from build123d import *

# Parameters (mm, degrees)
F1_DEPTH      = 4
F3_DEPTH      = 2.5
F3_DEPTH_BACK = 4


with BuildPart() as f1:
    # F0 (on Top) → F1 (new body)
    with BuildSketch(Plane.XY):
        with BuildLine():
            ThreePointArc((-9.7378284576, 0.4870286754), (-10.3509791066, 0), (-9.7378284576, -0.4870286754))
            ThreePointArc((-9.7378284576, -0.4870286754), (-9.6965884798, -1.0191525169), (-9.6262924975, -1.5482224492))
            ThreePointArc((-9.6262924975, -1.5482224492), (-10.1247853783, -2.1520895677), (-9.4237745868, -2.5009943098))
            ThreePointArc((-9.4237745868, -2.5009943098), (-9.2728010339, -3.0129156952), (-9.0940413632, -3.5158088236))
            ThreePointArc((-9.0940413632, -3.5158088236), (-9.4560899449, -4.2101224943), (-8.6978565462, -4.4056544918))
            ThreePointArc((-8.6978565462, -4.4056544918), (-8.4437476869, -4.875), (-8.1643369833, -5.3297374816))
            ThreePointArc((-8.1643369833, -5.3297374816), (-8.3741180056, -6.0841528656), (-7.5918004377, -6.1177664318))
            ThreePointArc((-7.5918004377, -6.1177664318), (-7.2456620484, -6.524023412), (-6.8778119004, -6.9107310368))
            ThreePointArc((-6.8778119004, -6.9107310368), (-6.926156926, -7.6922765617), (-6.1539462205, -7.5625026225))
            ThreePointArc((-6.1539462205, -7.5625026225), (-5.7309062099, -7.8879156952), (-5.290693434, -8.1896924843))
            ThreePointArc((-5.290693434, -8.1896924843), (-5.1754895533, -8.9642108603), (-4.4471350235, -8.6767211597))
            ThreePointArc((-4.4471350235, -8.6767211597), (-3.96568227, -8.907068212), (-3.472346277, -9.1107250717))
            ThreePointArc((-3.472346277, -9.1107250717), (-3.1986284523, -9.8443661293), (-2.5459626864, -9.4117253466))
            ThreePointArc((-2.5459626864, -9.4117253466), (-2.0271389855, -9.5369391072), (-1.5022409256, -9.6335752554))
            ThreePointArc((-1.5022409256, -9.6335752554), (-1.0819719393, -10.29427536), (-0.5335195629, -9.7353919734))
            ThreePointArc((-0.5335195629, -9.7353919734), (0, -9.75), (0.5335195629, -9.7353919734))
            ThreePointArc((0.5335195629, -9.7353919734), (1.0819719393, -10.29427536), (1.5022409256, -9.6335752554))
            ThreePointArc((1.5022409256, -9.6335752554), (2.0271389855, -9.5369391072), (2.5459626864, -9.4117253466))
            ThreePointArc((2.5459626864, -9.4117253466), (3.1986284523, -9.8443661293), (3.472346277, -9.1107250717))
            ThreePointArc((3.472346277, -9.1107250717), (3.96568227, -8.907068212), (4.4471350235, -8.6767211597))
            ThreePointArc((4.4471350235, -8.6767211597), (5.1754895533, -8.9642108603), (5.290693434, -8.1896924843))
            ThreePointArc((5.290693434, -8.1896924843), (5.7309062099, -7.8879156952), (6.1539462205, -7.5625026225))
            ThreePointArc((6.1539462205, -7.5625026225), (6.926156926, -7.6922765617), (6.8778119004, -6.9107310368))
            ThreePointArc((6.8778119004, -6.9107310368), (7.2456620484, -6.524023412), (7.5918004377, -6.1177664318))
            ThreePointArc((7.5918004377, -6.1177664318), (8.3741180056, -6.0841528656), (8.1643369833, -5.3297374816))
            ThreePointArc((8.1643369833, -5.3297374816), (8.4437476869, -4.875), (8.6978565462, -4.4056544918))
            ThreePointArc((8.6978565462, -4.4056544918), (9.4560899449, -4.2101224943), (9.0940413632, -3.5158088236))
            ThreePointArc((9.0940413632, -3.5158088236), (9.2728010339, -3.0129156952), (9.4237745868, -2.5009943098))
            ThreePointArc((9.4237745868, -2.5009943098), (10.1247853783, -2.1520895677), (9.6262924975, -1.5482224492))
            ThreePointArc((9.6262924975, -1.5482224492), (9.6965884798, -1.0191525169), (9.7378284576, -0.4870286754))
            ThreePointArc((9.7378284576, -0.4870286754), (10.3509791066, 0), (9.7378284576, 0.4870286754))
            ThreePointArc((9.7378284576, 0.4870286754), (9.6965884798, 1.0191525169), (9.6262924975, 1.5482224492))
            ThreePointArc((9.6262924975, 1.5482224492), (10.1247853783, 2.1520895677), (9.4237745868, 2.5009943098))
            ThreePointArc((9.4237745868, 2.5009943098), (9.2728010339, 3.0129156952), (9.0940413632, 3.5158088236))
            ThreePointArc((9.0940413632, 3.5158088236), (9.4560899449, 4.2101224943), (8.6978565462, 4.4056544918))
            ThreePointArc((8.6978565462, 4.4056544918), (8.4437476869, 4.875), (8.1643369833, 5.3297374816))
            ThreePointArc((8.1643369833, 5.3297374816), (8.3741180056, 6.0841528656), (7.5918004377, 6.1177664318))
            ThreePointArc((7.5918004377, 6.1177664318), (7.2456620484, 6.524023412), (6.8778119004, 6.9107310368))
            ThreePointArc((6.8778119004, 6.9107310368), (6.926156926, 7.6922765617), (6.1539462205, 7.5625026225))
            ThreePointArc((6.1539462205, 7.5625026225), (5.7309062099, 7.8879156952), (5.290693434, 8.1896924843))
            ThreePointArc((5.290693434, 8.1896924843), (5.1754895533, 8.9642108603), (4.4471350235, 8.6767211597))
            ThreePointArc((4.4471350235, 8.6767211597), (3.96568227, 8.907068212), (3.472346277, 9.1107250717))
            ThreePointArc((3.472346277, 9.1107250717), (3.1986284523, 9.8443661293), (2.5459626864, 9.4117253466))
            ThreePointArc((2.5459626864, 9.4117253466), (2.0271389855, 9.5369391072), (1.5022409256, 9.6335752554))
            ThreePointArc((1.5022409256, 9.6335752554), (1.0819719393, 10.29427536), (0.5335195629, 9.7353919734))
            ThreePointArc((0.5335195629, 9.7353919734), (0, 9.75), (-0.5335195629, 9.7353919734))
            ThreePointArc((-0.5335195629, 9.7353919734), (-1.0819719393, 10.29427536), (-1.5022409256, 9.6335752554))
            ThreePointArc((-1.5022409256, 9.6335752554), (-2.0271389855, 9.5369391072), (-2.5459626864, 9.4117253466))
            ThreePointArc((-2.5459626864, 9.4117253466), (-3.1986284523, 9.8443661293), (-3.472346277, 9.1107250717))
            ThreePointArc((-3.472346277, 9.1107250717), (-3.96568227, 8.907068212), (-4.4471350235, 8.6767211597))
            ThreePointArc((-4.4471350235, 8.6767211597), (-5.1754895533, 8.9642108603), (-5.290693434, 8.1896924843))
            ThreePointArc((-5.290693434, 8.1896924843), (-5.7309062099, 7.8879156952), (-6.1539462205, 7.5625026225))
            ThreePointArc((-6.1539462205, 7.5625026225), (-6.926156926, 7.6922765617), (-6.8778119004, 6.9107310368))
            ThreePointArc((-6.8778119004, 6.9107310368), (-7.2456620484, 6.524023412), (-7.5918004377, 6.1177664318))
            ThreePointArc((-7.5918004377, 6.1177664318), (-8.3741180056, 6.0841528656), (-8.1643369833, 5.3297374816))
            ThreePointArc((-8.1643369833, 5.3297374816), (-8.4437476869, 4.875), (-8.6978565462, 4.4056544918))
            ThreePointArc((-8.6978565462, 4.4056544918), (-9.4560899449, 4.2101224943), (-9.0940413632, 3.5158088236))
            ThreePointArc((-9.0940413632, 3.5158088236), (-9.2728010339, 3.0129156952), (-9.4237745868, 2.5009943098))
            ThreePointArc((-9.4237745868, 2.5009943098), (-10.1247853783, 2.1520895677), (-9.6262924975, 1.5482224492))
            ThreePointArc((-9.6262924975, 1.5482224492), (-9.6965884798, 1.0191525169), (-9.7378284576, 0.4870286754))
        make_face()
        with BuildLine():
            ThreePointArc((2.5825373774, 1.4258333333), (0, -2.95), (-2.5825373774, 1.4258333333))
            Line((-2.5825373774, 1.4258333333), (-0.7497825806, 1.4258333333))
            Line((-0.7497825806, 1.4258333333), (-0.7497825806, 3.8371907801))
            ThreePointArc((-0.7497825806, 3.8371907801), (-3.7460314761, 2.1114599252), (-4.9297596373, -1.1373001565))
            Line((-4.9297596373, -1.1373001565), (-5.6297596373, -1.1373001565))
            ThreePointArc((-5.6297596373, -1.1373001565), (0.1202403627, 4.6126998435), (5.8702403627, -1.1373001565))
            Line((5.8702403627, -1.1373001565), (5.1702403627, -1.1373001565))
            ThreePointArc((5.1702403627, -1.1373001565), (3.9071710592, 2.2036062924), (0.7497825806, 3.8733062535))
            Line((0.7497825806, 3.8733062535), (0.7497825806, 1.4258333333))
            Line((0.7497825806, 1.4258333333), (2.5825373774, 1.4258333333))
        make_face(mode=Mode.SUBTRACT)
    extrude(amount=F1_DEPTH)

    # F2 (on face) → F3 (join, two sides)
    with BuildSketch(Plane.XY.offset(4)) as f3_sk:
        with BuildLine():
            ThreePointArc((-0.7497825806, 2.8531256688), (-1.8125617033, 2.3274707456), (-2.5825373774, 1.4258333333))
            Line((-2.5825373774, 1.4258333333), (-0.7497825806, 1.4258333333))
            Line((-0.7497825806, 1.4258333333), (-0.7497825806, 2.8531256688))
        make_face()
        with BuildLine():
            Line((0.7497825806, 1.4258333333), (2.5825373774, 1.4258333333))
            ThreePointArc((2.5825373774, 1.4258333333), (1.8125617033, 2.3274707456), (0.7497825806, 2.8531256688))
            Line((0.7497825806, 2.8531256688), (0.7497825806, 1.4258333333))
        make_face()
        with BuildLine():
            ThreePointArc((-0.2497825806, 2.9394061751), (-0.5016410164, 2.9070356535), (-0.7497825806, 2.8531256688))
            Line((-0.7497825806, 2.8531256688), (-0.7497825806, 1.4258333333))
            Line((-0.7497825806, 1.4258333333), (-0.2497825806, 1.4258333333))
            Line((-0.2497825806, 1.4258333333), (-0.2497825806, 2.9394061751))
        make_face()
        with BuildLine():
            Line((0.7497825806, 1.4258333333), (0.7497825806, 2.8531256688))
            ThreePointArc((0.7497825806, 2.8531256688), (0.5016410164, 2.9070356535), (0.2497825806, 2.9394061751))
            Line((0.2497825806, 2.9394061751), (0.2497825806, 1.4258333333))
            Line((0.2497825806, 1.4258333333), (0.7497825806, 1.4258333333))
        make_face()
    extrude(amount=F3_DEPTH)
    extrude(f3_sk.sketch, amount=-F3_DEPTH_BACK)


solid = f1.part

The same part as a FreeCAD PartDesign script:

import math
import FreeCAD as App
import Part
import Sketcher

V = App.Vector
Q = App.Units.Quantity

doc = App.newDocument("Part")
body = doc.addObject("PartDesign::Body", "Body")

sketch1 = body.newObject("Sketcher::SketchObject", "Sketch")
sketch1.AttachmentSupport = (doc.getObject("XY_Plane"), [""])
sketch1.MapMode = "FlatFace"
sketch1.addGeometry(Part.ArcOfCircle(Part.Circle(V(-9.9, 0, 0), V(0, 0, 1), 0.5), math.radians(77), math.radians(283)), False)
sketch1.addGeometry(Part.ArcOfCircle(Part.Circle(V(0, 0, 0), V(0, 0, 1), 9.8), math.radians(-177.14), math.radians(-170.86)), False)
sketch1.addGeometry(Part.ArcOfCircle(Part.Circle(V(-9.6, -2, 0), V(0, 0, 1), 0.5), math.radians(89), math.radians(295)), False)
sketch1.addGeometry(Part.ArcOfCircle(Part.Circle(V(0, 0, 0), V(0, 0, 1), 9.7), math.radians(-165.14), math.radians(-158.86)), False)
sketch1.addGeometry(Part.ArcOfCircle(Part.Circle(V(-9, -4, 0), V(0, 0, 1), 0.5), math.radians(101), math.radians(307)), False)
sketch1.addGeometry(Part.ArcOfCircle(Part.Circle(V(0, 0, 0), V(0, 0, 1), 9.7), math.radians(-153.14), math.radians(-146.86)), False)
sketch1.addGeometry(Part.ArcOfCircle(Part.Circle(V(-8, -5.8, 0), V(0, 0, 1), 0.5), math.radians(113), math.radians(319)), False)
sketch1.addGeometry(Part.ArcOfCircle(Part.Circle(V(0, 0, 0), V(0, 0, 1), 9.8), math.radians(-141.14), math.radians(-134.86)), False)
sketch1.addGeometry(Part.ArcOfCircle(Part.Circle(V(-6.6, -7.3, 0), V(0, 0, 1), 0.5), math.radians(125), math.radians(331)), False)
sketch1.addGeometry(Part.ArcOfCircle(Part.Circle(V(0, 0, 0), V(0, 0, 1), 9.7), math.radians(-129.14), math.radians(-122.86)), False)
sketch1.addGeometry(Part.ArcOfCircle(Part.Circle(V(-4.9, -8.5, 0), V(0, 0, 1), 0.5), math.radians(137), math.radians(343)), False)
sketch1.addGeometry(Part.ArcOfCircle(Part.Circle(V(0, 0, 0), V(0, 0, 1), 9.8), math.radians(-117.14), math.radians(-110.86)), False)
sketch1.addGeometry(Part.ArcOfCircle(Part.Circle(V(-3, -9.4, 0), V(0, 0, 1), 0.5), math.radians(149), math.radians(355)), False)
sketch1.addGeometry(Part.ArcOfCircle(Part.Circle(V(0, 0, 0), V(0, 0, 1), 9.7), math.radians(-105.14), math.radians(-98.86)), False)
sketch1.addGeometry(Part.ArcOfCircle(Part.Circle(V(-1, -9.8, 0), V(0, 0, 1), 0.5), math.radians(161), math.radians(367)), False)
sketch1.addGeometry(Part.ArcOfCircle(Part.Circle(V(0, 0, 0), V(0, 0, 1), 9.7), math.radians(-93.14), math.radians(-86.86)), False)
sketch1.addGeometry(Part.ArcOfCircle(Part.Circle(V(1, -9.8, 0), V(0, 0, 1), 0.5), math.radians(173), math.radians(379)), False)
sketch1.addGeometry(Part.ArcOfCircle(Part.Circle(V(0, 0, 0), V(0, 0, 1), 9.7), math.radians(-81.14), math.radians(-74.86)), False)
sketch1.addGeometry(Part.ArcOfCircle(Part.Circle(V(3, -9.4, 0), V(0, 0, 1), 0.5), math.radians(-175), math.radians(31)), False)
sketch1.addGeometry(Part.ArcOfCircle(Part.Circle(V(0, 0, 0), V(0, 0, 1), 9.8), math.radians(-69.14), math.radians(-62.86)), False)
sketch1.addGeometry(Part.ArcOfCircle(Part.Circle(V(4.9, -8.5, 0), V(0, 0, 1), 0.5), math.radians(-163), math.radians(43)), False)
sketch1.addGeometry(Part.ArcOfCircle(Part.Circle(V(0, 0, 0), V(0, 0, 1), 9.7), math.radians(-57.14), math.radians(-50.86)), False)
sketch1.addGeometry(Part.ArcOfCircle(Part.Circle(V(6.6, -7.3, 0), V(0, 0, 1), 0.5), math.radians(-151), math.radians(55)), False)
sketch1.addGeometry(Part.ArcOfCircle(Part.Circle(V(0, 0, 0), V(0, 0, 1), 9.8), math.radians(-45.14), math.radians(-38.86)), False)
sketch1.addGeometry(Part.ArcOfCircle(Part.Circle(V(8, -5.8, 0), V(0, 0, 1), 0.5), math.radians(-139), math.radians(67)), False)
sketch1.addGeometry(Part.ArcOfCircle(Part.Circle(V(0, 0, 0), V(0, 0, 1), 9.7), math.radians(-33.14), math.radians(-26.86)), False)
sketch1.addGeometry(Part.ArcOfCircle(Part.Circle(V(9, -4, 0), V(0, 0, 1), 0.5), math.radians(-127), math.radians(79)), False)
sketch1.addGeometry(Part.ArcOfCircle(Part.Circle(V(0, 0, 0), V(0, 0, 1), 9.7), math.radians(-21.14), math.radians(-14.86)), False)
sketch1.addGeometry(Part.ArcOfCircle(Part.Circle(V(9.6, -2, 0), V(0, 0, 1), 0.5), math.radians(-115), math.radians(91)), False)
sketch1.addGeometry(Part.ArcOfCircle(Part.Circle(V(0, 0, 0), V(0, 0, 1), 9.8), math.radians(-9.14), math.radians(-2.86)), False)
sketch1.addGeometry(Part.ArcOfCircle(Part.Circle(V(9.9, 0, 0), V(0, 0, 1), 0.5), math.radians(-103), math.radians(103)), False)
sketch1.addGeometry(Part.ArcOfCircle(Part.Circle(V(0, 0, 0), V(0, 0, 1), 9.8), math.radians(2.86), math.radians(9.14)), False)
sketch1.addGeometry(Part.ArcOfCircle(Part.Circle(V(9.6, 2, 0), V(0, 0, 1), 0.5), math.radians(-91), math.radians(115)), False)
sketch1.addGeometry(Part.ArcOfCircle(Part.Circle(V(0, 0, 0), V(0, 0, 1), 9.7), math.radians(14.86), math.radians(21.14)), False)
sketch1.addGeometry(Part.ArcOfCircle(Part.Circle(V(9, 4, 0), V(0, 0, 1), 0.5), math.radians(-79), math.radians(127)), False)
sketch1.addGeometry(Part.ArcOfCircle(Part.Circle(V(0, 0, 0), V(0, 0, 1), 9.7), math.radians(26.86), math.radians(33.14)), False)
sketch1.addGeometry(Part.ArcOfCircle(Part.Circle(V(8, 5.8, 0), V(0, 0, 1), 0.5), math.radians(-67), math.radians(139)), False)
sketch1.addGeometry(Part.ArcOfCircle(Part.Circle(V(0, 0, 0), V(0, 0, 1), 9.8), math.radians(38.86), math.radians(45.14)), False)
sketch1.addGeometry(Part.ArcOfCircle(Part.Circle(V(6.6, 7.3, 0), V(0, 0, 1), 0.5), math.radians(-55), math.radians(151)), False)
sketch1.addGeometry(Part.ArcOfCircle(Part.Circle(V(0, 0, 0), V(0, 0, 1), 9.7), math.radians(50.86), math.radians(57.14)), False)
sketch1.addGeometry(Part.ArcOfCircle(Part.Circle(V(4.9, 8.5, 0), V(0, 0, 1), 0.5), math.radians(-43), math.radians(163)), False)
sketch1.addGeometry(Part.ArcOfCircle(Part.Circle(V(0, 0, 0), V(0, 0, 1), 9.8), math.radians(62.86), math.radians(69.14)), False)
sketch1.addGeometry(Part.ArcOfCircle(Part.Circle(V(3, 9.4, 0), V(0, 0, 1), 0.5), math.radians(-31), math.radians(175)), False)
sketch1.addGeometry(Part.ArcOfCircle(Part.Circle(V(0, 0, 0), V(0, 0, 1), 9.7), math.radians(74.86), math.radians(81.14)), False)
sketch1.addGeometry(Part.ArcOfCircle(Part.Circle(V(1, 9.8, 0), V(0, 0, 1), 0.5), math.radians(-19), math.radians(187)), False)
sketch1.addGeometry(Part.ArcOfCircle(Part.Circle(V(0, 0, 0), V(0, 0, 1), 9.7), math.radians(86.86), math.radians(93.14)), False)
sketch1.addGeometry(Part.ArcOfCircle(Part.Circle(V(-1, 9.8, 0), V(0, 0, 1), 0.5), math.radians(-7), math.radians(199)), False)
sketch1.addGeometry(Part.ArcOfCircle(Part.Circle(V(0, 0, 0), V(0, 0, 1), 9.7), math.radians(98.86), math.radians(105.14)), False)
sketch1.addGeometry(Part.ArcOfCircle(Part.Circle(V(-3, 9.4, 0), V(0, 0, 1), 0.5), math.radians(5), math.radians(211)), False)
sketch1.addGeometry(Part.ArcOfCircle(Part.Circle(V(0, 0, 0), V(0, 0, 1), 9.8), math.radians(110.86), math.radians(117.14)), False)
sketch1.addGeometry(Part.ArcOfCircle(Part.Circle(V(-4.9, 8.5, 0), V(0, 0, 1), 0.5), math.radians(17), math.radians(223)), False)
sketch1.addGeometry(Part.ArcOfCircle(Part.Circle(V(0, 0, 0), V(0, 0, 1), 9.7), math.radians(122.86), math.radians(129.14)), False)
sketch1.addGeometry(Part.ArcOfCircle(Part.Circle(V(-6.6, 7.3, 0), V(0, 0, 1), 0.5), math.radians(29), math.radians(235)), False)
sketch1.addGeometry(Part.ArcOfCircle(Part.Circle(V(0, 0, 0), V(0, 0, 1), 9.8), math.radians(134.86), math.radians(141.14)), False)
sketch1.addGeometry(Part.ArcOfCircle(Part.Circle(V(-8, 5.8, 0), V(0, 0, 1), 0.5), math.radians(41), math.radians(247)), False)
sketch1.addGeometry(Part.ArcOfCircle(Part.Circle(V(0, 0, 0), V(0, 0, 1), 9.7), math.radians(146.86), math.radians(153.14)), False)
sketch1.addGeometry(Part.ArcOfCircle(Part.Circle(V(-9, 4, 0), V(0, 0, 1), 0.5), math.radians(53), math.radians(259)), False)
sketch1.addGeometry(Part.ArcOfCircle(Part.Circle(V(0, 0, 0), V(0, 0, 1), 9.7), math.radians(158.86), math.radians(165.14)), False)
sketch1.addGeometry(Part.ArcOfCircle(Part.Circle(V(-9.6, 2, 0), V(0, 0, 1), 0.5), math.radians(65), math.radians(271)), False)
sketch1.addGeometry(Part.ArcOfCircle(Part.Circle(V(0, 0, 0), V(0, 0, 1), 9.8), math.radians(170.86), math.radians(177.14)), False)
sketch1.addGeometry(Part.LineSegment(V(0.7, 1.4, 0), V(2.6, 1.4, 0)), False)
sketch1.addGeometry(Part.ArcOfCircle(Part.Circle(V(0, 0, 0), V(0, 0, 1), 3), math.radians(151), math.radians(389)), False)
sketch1.addGeometry(Part.LineSegment(V(-2.6, 1.4, 0), V(-0.7, 1.4, 0)), False)
sketch1.addGeometry(Part.LineSegment(V(-0.7, 1.4, 0), V(-0.7, 3.8, 0)), False)
sketch1.addGeometry(Part.ArcOfCircle(Part.Circle(V(0.1, -1.1, 0), V(0, 0, 1), 5), math.radians(100), math.radians(180)), False)
sketch1.addGeometry(Part.LineSegment(V(-4.9, -1.1, 0), V(-5.6, -1.1, 0)), False)
sketch1.addGeometry(Part.ArcOfCircle(Part.Circle(V(0.1, -1.1, 0), V(0, 0, 1), 5.8), math.radians(0), math.radians(180)), False)
sketch1.addGeometry(Part.LineSegment(V(5.9, -1.1, 0), V(5.2, -1.1, 0)), False)
sketch1.addGeometry(Part.ArcOfCircle(Part.Circle(V(0.1, -1.1, 0), V(0, 0, 1), 5), math.radians(0), math.radians(83)), False)
sketch1.addGeometry(Part.LineSegment(V(0.7, 3.9, 0), V(0.7, 1.4, 0)), False)
sketch1.addConstraint(Sketcher.Constraint("Coincident", 0, 2, 1, 1))
sketch1.addConstraint(Sketcher.Constraint("Coincident", 1, 2, 2, 1))
sketch1.addConstraint(Sketcher.Constraint("Coincident", 2, 2, 3, 1))
sketch1.addConstraint(Sketcher.Constraint("Coincident", 3, 2, 4, 1))
sketch1.addConstraint(Sketcher.Constraint("Coincident", 4, 2, 5, 1))
sketch1.addConstraint(Sketcher.Constraint("Coincident", 5, 2, 6, 1))
sketch1.addConstraint(Sketcher.Constraint("Coincident", 6, 2, 7, 1))
sketch1.addConstraint(Sketcher.Constraint("Coincident", 7, 2, 8, 1))
sketch1.addConstraint(Sketcher.Constraint("Coincident", 8, 2, 9, 1))
sketch1.addConstraint(Sketcher.Constraint("Coincident", 9, 2, 10, 1))
sketch1.addConstraint(Sketcher.Constraint("Coincident", 10, 2, 11, 1))
sketch1.addConstraint(Sketcher.Constraint("Coincident", 11, 2, 12, 1))
sketch1.addConstraint(Sketcher.Constraint("Coincident", 12, 2, 13, 1))
sketch1.addConstraint(Sketcher.Constraint("Coincident", 13, 2, 14, 1))
sketch1.addConstraint(Sketcher.Constraint("Coincident", 14, 2, 15, 1))
sketch1.addConstraint(Sketcher.Constraint("Coincident", 15, 2, 16, 1))
sketch1.addConstraint(Sketcher.Constraint("Coincident", 16, 2, 17, 1))
sketch1.addConstraint(Sketcher.Constraint("Coincident", 17, 2, 18, 1))
sketch1.addConstraint(Sketcher.Constraint("Coincident", 18, 2, 19, 1))
sketch1.addConstraint(Sketcher.Constraint("Coincident", 19, 2, 20, 1))
sketch1.addConstraint(Sketcher.Constraint("Coincident", 20, 2, 21, 1))
sketch1.addConstraint(Sketcher.Constraint("Coincident", 21, 2, 22, 1))
sketch1.addConstraint(Sketcher.Constraint("Coincident", 22, 2, 23, 1))
sketch1.addConstraint(Sketcher.Constraint("Coincident", 23, 2, 24, 1))
sketch1.addConstraint(Sketcher.Constraint("Coincident", 24, 2, 25, 1))
sketch1.addConstraint(Sketcher.Constraint("Coincident", 25, 2, 26, 1))
sketch1.addConstraint(Sketcher.Constraint("Coincident", 26, 2, 27, 1))
sketch1.addConstraint(Sketcher.Constraint("Coincident", 27, 2, 28, 1))
sketch1.addConstraint(Sketcher.Constraint("Coincident", 28, 2, 29, 1))
sketch1.addConstraint(Sketcher.Constraint("Coincident", 29, 2, 30, 1))
sketch1.addConstraint(Sketcher.Constraint("Coincident", 30, 2, 31, 1))
sketch1.addConstraint(Sketcher.Constraint("Coincident", 31, 2, 32, 1))
sketch1.addConstraint(Sketcher.Constraint("Coincident", 32, 2, 33, 1))
sketch1.addConstraint(Sketcher.Constraint("Coincident", 33, 2, 34, 1))
sketch1.addConstraint(Sketcher.Constraint("Coincident", 34, 2, 35, 1))
sketch1.addConstraint(Sketcher.Constraint("Coincident", 35, 2, 36, 1))
sketch1.addConstraint(Sketcher.Constraint("Coincident", 36, 2, 37, 1))
sketch1.addConstraint(Sketcher.Constraint("Coincident", 37, 2, 38, 1))
sketch1.addConstraint(Sketcher.Constraint("Coincident", 38, 2, 39, 1))
sketch1.addConstraint(Sketcher.Constraint("Coincident", 39, 2, 40, 1))
sketch1.addConstraint(Sketcher.Constraint("Coincident", 40, 2, 41, 1))
sketch1.addConstraint(Sketcher.Constraint("Coincident", 41, 2, 42, 1))
sketch1.addConstraint(Sketcher.Constraint("Coincident", 42, 2, 43, 1))
sketch1.addConstraint(Sketcher.Constraint("Coincident", 43, 2, 44, 1))
sketch1.addConstraint(Sketcher.Constraint("Coincident", 44, 2, 45, 1))
sketch1.addConstraint(Sketcher.Constraint("Coincident", 45, 2, 46, 1))
sketch1.addConstraint(Sketcher.Constraint("Coincident", 46, 2, 47, 1))
sketch1.addConstraint(Sketcher.Constraint("Coincident", 47, 2, 48, 1))
sketch1.addConstraint(Sketcher.Constraint("Coincident", 48, 2, 49, 1))
sketch1.addConstraint(Sketcher.Constraint("Coincident", 49, 2, 50, 1))
sketch1.addConstraint(Sketcher.Constraint("Coincident", 50, 2, 51, 1))
sketch1.addConstraint(Sketcher.Constraint("Coincident", 51, 2, 52, 1))
sketch1.addConstraint(Sketcher.Constraint("Coincident", 52, 2, 53, 1))
sketch1.addConstraint(Sketcher.Constraint("Coincident", 53, 2, 54, 1))
sketch1.addConstraint(Sketcher.Constraint("Coincident", 54, 2, 55, 1))
sketch1.addConstraint(Sketcher.Constraint("Coincident", 55, 2, 56, 1))
sketch1.addConstraint(Sketcher.Constraint("Coincident", 56, 2, 57, 1))
sketch1.addConstraint(Sketcher.Constraint("Coincident", 57, 2, 58, 1))
sketch1.addConstraint(Sketcher.Constraint("Coincident", 58, 2, 59, 1))
sketch1.addConstraint(Sketcher.Constraint("Coincident", 59, 2, 0, 1))
sketch1.addConstraint(Sketcher.Constraint("Coincident", 60, 2, 61, 2))
sketch1.addConstraint(Sketcher.Constraint("Coincident", 61, 1, 62, 1))
sketch1.addConstraint(Sketcher.Constraint("Coincident", 62, 2, 63, 1))
sketch1.addConstraint(Sketcher.Constraint("Coincident", 63, 2, 64, 1))
sketch1.addConstraint(Sketcher.Constraint("Coincident", 64, 2, 65, 1))
sketch1.addConstraint(Sketcher.Constraint("Coincident", 65, 2, 66, 2))
sketch1.addConstraint(Sketcher.Constraint("Coincident", 66, 1, 67, 1))
sketch1.addConstraint(Sketcher.Constraint("Coincident", 67, 2, 68, 1))
sketch1.addConstraint(Sketcher.Constraint("Coincident", 68, 2, 69, 1))
sketch1.addConstraint(Sketcher.Constraint("Coincident", 69, 2, 60, 1))
sketch1.addConstraint(Sketcher.Constraint("Horizontal", 60))
sketch1.addConstraint(Sketcher.Constraint("Horizontal", 62))
sketch1.addConstraint(Sketcher.Constraint("Vertical", 63))
sketch1.addConstraint(Sketcher.Constraint("Horizontal", 65))
sketch1.addConstraint(Sketcher.Constraint("Horizontal", 67))
sketch1.addConstraint(Sketcher.Constraint("Vertical", 69))
sketch1.addConstraint(Sketcher.Constraint("Coincident", 1, 3, -1, 1))
sketch1.addConstraint(Sketcher.Constraint("Coincident", 3, 3, -1, 1))
sketch1.addConstraint(Sketcher.Constraint("Coincident", 5, 3, -1, 1))
sketch1.addConstraint(Sketcher.Constraint("Coincident", 7, 3, -1, 1))
sketch1.addConstraint(Sketcher.Constraint("Coincident", 9, 3, -1, 1))
sketch1.addConstraint(Sketcher.Constraint("Coincident", 11, 3, -1, 1))
sketch1.addConstraint(Sketcher.Constraint("Coincident", 13, 3, -1, 1))
sketch1.addConstraint(Sketcher.Constraint("Coincident", 15, 3, -1, 1))
sketch1.addConstraint(Sketcher.Constraint("Coincident", 17, 3, -1, 1))
sketch1.addConstraint(Sketcher.Constraint("Coincident", 19, 3, -1, 1))
sketch1.addConstraint(Sketcher.Constraint("Coincident", 21, 3, -1, 1))
sketch1.addConstraint(Sketcher.Constraint("Coincident", 23, 3, -1, 1))
sketch1.addConstraint(Sketcher.Constraint("Coincident", 25, 3, -1, 1))
sketch1.addConstraint(Sketcher.Constraint("Coincident", 27, 3, -1, 1))
sketch1.addConstraint(Sketcher.Constraint("Coincident", 29, 3, -1, 1))
sketch1.addConstraint(Sketcher.Constraint("Coincident", 31, 3, -1, 1))
sketch1.addConstraint(Sketcher.Constraint("Coincident", 33, 3, -1, 1))
sketch1.addConstraint(Sketcher.Constraint("Coincident", 35, 3, -1, 1))
sketch1.addConstraint(Sketcher.Constraint("Coincident", 37, 3, -1, 1))
sketch1.addConstraint(Sketcher.Constraint("Coincident", 39, 3, -1, 1))
sketch1.addConstraint(Sketcher.Constraint("Coincident", 41, 3, -1, 1))
sketch1.addConstraint(Sketcher.Constraint("Coincident", 43, 3, -1, 1))
sketch1.addConstraint(Sketcher.Constraint("Coincident", 45, 3, -1, 1))
sketch1.addConstraint(Sketcher.Constraint("Coincident", 47, 3, -1, 1))
sketch1.addConstraint(Sketcher.Constraint("Coincident", 49, 3, -1, 1))
sketch1.addConstraint(Sketcher.Constraint("Coincident", 51, 3, -1, 1))
sketch1.addConstraint(Sketcher.Constraint("Coincident", 53, 3, -1, 1))
sketch1.addConstraint(Sketcher.Constraint("Coincident", 55, 3, -1, 1))
sketch1.addConstraint(Sketcher.Constraint("Coincident", 57, 3, -1, 1))
sketch1.addConstraint(Sketcher.Constraint("Coincident", 59, 3, -1, 1))
sketch1.addConstraint(Sketcher.Constraint("Coincident", 61, 3, -1, 1))
sketch1.addConstraint(Sketcher.Constraint("Coincident", 66, 3, 64, 3))
sketch1.addConstraint(Sketcher.Constraint("Coincident", 68, 3, 64, 3))
sketch1.addConstraint(Sketcher.Constraint("Equal", 0, 2))
sketch1.addConstraint(Sketcher.Constraint("Equal", 1, 3))
sketch1.addConstraint(Sketcher.Constraint("Equal", 2, 4))
sketch1.addConstraint(Sketcher.Constraint("Equal", 3, 5))
sketch1.addConstraint(Sketcher.Constraint("Equal", 4, 6))
sketch1.addConstraint(Sketcher.Constraint("Equal", 5, 7))
sketch1.addConstraint(Sketcher.Constraint("Equal", 6, 8))
sketch1.addConstraint(Sketcher.Constraint("Equal", 7, 9))
sketch1.addConstraint(Sketcher.Constraint("Equal", 8, 10))
sketch1.addConstraint(Sketcher.Constraint("Equal", 9, 11))
sketch1.addConstraint(Sketcher.Constraint("Equal", 10, 12))
sketch1.addConstraint(Sketcher.Constraint("Equal", 11, 13))
sketch1.addConstraint(Sketcher.Constraint("Equal", 12, 14))
sketch1.addConstraint(Sketcher.Constraint("Equal", 13, 15))
sketch1.addConstraint(Sketcher.Constraint("Equal", 14, 16))
sketch1.addConstraint(Sketcher.Constraint("Equal", 15, 17))
sketch1.addConstraint(Sketcher.Constraint("Equal", 16, 18))
sketch1.addConstraint(Sketcher.Constraint("Equal", 17, 19))
sketch1.addConstraint(Sketcher.Constraint("Equal", 18, 20))
sketch1.addConstraint(Sketcher.Constraint("Equal", 19, 21))
sketch1.addConstraint(Sketcher.Constraint("Equal", 20, 22))
sketch1.addConstraint(Sketcher.Constraint("Equal", 21, 23))
sketch1.addConstraint(Sketcher.Constraint("Equal", 22, 24))
sketch1.addConstraint(Sketcher.Constraint("Equal", 23, 25))
sketch1.addConstraint(Sketcher.Constraint("Equal", 24, 26))
sketch1.addConstraint(Sketcher.Constraint("Equal", 25, 27))
sketch1.addConstraint(Sketcher.Constraint("Equal", 26, 28))
sketch1.addConstraint(Sketcher.Constraint("Equal", 27, 29))
sketch1.addConstraint(Sketcher.Constraint("Equal", 28, 30))
sketch1.addConstraint(Sketcher.Constraint("Equal", 29, 31))
sketch1.addConstraint(Sketcher.Constraint("Equal", 30, 32))
sketch1.addConstraint(Sketcher.Constraint("Equal", 31, 33))
sketch1.addConstraint(Sketcher.Constraint("Equal", 32, 34))
sketch1.addConstraint(Sketcher.Constraint("Equal", 33, 35))
sketch1.addConstraint(Sketcher.Constraint("Equal", 34, 36))
sketch1.addConstraint(Sketcher.Constraint("Equal", 35, 37))
sketch1.addConstraint(Sketcher.Constraint("Equal", 36, 38))
sketch1.addConstraint(Sketcher.Constraint("Equal", 37, 39))
sketch1.addConstraint(Sketcher.Constraint("Equal", 38, 40))
sketch1.addConstraint(Sketcher.Constraint("Equal", 39, 41))
sketch1.addConstraint(Sketcher.Constraint("Equal", 40, 42))
sketch1.addConstraint(Sketcher.Constraint("Equal", 41, 43))
sketch1.addConstraint(Sketcher.Constraint("Equal", 42, 44))
sketch1.addConstraint(Sketcher.Constraint("Equal", 43, 45))
sketch1.addConstraint(Sketcher.Constraint("Equal", 44, 46))
sketch1.addConstraint(Sketcher.Constraint("Equal", 45, 47))
sketch1.addConstraint(Sketcher.Constraint("Equal", 46, 48))
sketch1.addConstraint(Sketcher.Constraint("Equal", 47, 49))
sketch1.addConstraint(Sketcher.Constraint("Equal", 48, 50))
sketch1.addConstraint(Sketcher.Constraint("Equal", 49, 51))
sketch1.addConstraint(Sketcher.Constraint("Equal", 50, 52))
sketch1.addConstraint(Sketcher.Constraint("Equal", 51, 53))
sketch1.addConstraint(Sketcher.Constraint("Equal", 52, 54))
sketch1.addConstraint(Sketcher.Constraint("Equal", 53, 55))
sketch1.addConstraint(Sketcher.Constraint("Equal", 54, 56))
sketch1.addConstraint(Sketcher.Constraint("Equal", 55, 57))
sketch1.addConstraint(Sketcher.Constraint("Equal", 56, 58))
sketch1.addConstraint(Sketcher.Constraint("Equal", 57, 59))
sketch1.addConstraint(Sketcher.Constraint("Equal", 64, 68))
sketch1.addConstraint(Sketcher.Constraint("Symmetric", 0, 3, 30, 3, -1, 1))
sketch1.addConstraint(Sketcher.Constraint("Symmetric", 2, 3, 32, 3, -1, 1))
sketch1.addConstraint(Sketcher.Constraint("Symmetric", 4, 3, 34, 3, -1, 1))
sketch1.addConstraint(Sketcher.Constraint("Symmetric", 6, 3, 36, 3, -1, 1))
sketch1.addConstraint(Sketcher.Constraint("Symmetric", 8, 3, 38, 3, -1, 1))
sketch1.addConstraint(Sketcher.Constraint("Symmetric", 10, 3, 40, 3, -1, 1))
sketch1.addConstraint(Sketcher.Constraint("Symmetric", 12, 3, 42, 3, -1, 1))
sketch1.addConstraint(Sketcher.Constraint("Symmetric", 14, 3, 44, 3, -1, 1))
sketch1.addConstraint(Sketcher.Constraint("Symmetric", 16, 3, 46, 3, -1, 1))
sketch1.addConstraint(Sketcher.Constraint("Symmetric", 18, 3, 48, 3, -1, 1))
sketch1.addConstraint(Sketcher.Constraint("Symmetric", 20, 3, 50, 3, -1, 1))
sketch1.addConstraint(Sketcher.Constraint("Symmetric", 22, 3, 52, 3, -1, 1))
sketch1.addConstraint(Sketcher.Constraint("Symmetric", 24, 3, 54, 3, -1, 1))
sketch1.addConstraint(Sketcher.Constraint("Symmetric", 26, 3, 56, 3, -1, 1))
sketch1.addConstraint(Sketcher.Constraint("Symmetric", 28, 3, 58, 3, -1, 1))
sketch1.addConstraint(Sketcher.Constraint("Symmetric", 14, 3, 16, 3, -2))
sketch1.addConstraint(Sketcher.Constraint("Symmetric", 12, 3, 18, 3, -2))
sketch1.addConstraint(Sketcher.Constraint("Symmetric", 10, 3, 20, 3, -2))
sketch1.addConstraint(Sketcher.Constraint("Symmetric", 8, 3, 22, 3, -2))
sketch1.addConstraint(Sketcher.Constraint("Symmetric", 6, 3, 24, 3, -2))
sketch1.addConstraint(Sketcher.Constraint("Symmetric", 4, 3, 26, 3, -2))
sketch1.addConstraint(Sketcher.Constraint("Symmetric", 2, 3, 28, 3, -2))
sketch1.addConstraint(Sketcher.Constraint("Symmetric", 62, 2, 69, 2, -2))
sketch1.addConstraint(Sketcher.Constraint("PointOnObject", 0, 3, -1))
sketch1.addConstraint(Sketcher.Constraint("Horizontal", 68, 3, 64, 2))
sketch1.addConstraint(Sketcher.Constraint("Horizontal", 65, 2, 66, 1))
sketch1.addConstraint(Sketcher.Constraint("Radius", 0, Q("0.5 mm")))
sketch1.addConstraint(Sketcher.Constraint("Radius", 1, Q("9.75 mm")))
sketch1.addConstraint(Sketcher.Constraint("Radius", 61, Q("2.95 mm")))
sketch1.addConstraint(Sketcher.Constraint("Radius", 64, Q("5.05 mm")))
sketch1.addConstraint(Sketcher.Constraint("Radius", 66, Q("5.75 mm")))
sketch1.addConstraint(Sketcher.Constraint("DistanceY", 10, 3, -1, 1, Q("8.531198 mm")))
sketch1.addConstraint(Sketcher.Constraint("DistanceY", 64, 3, -1, 1, Q("1.1373 mm")))
sketch1.addConstraint(Sketcher.Constraint("DistanceX", 6, 2, -1, 1, Q("7.5918 mm")))
sketch1.addConstraint(Sketcher.Constraint("DistanceX", 60, 1, 60, 2, Q("1.832755 mm")))
sketch1.addConstraint(Sketcher.Constraint("DistanceY", 63, 1, 63, 2, Q("2.411357 mm")))
sketch1.addConstraint(Sketcher.Constraint("DistanceY", 69, 2, 69, 1, Q("2.447473 mm")))
sketch1.addConstraint(Sketcher.Constraint("DistanceX", 0, 3, -1, 1, Q("9.850979 mm")))
sketch1.addConstraint(Sketcher.Constraint("DistanceX", 2, 3, -1, 1, Q("9.635712 mm")))
sketch1.addConstraint(Sketcher.Constraint("DistanceX", 6, 3, -1, 1, Q("7.96961 mm")))
sketch1.addConstraint(Sketcher.Constraint("DistanceX", 8, 3, -1, 1, Q("6.591592 mm")))
sketch1.addConstraint(Sketcher.Constraint("DistanceX", 10, 3, -1, 1, Q("4.92549 mm")))
sketch1.addConstraint(Sketcher.Constraint("DistanceX", 12, 3, -1, 1, Q("3.04412 mm")))
sketch1.addConstraint(Sketcher.Constraint("DistanceX", 3, 2, -1, 1, Q("9.094041 mm")))
sketch1.addConstraint(Sketcher.Constraint("DistanceX", 7, 2, -1, 1, Q("6.877812 mm")))
sketch1.addConstraint(Sketcher.Constraint("DistanceX", 13, 2, -1, 1, Q("1.502241 mm")))
sketch1.addConstraint(Sketcher.Constraint("DistanceX", 14, 2, -1, 1, Q("0.53352 mm")))
sketch1.addConstraint(Sketcher.Constraint("DistanceY", 2, 3, -1, 1, Q("2.048134 mm")))
sketch1.addConstraint(Sketcher.Constraint("DistanceX", 4, 3, -1, 1, Q("8.999317 mm")))
sketch1.addConstraint(Sketcher.Constraint("DistanceY", 12, 3, -1, 1, Q("9.368838 mm")))
pad1 = body.newObject("PartDesign::Pad", "Pad")
pad1.Profile = sketch1
pad1.Length = 4

sketch2 = body.newObject("Sketcher::SketchObject", "Sketch001")
sketch2.AttachmentSupport = (doc.getObject("XY_Plane"), [""])
sketch2.MapMode = "FlatFace"
sketch2.AttachmentOffset = App.Placement(V(0, 0, 4), App.Rotation())
sketch2.addGeometry(Part.LineSegment(V(-2.6, 1.4, 0), V(-0.2, 1.4, 0)), False)
sketch2.addGeometry(Part.LineSegment(V(-0.2, 1.4, 0), V(-0.2, 2.9, 0)), False)
sketch2.addGeometry(Part.ArcOfCircle(Part.Circle(V(0, 0, 0), V(0, 0, 1), 2.9), math.radians(94.86), math.radians(104.72)), False)
sketch2.addGeometry(Part.ArcOfCircle(Part.Circle(V(0, 0, 0), V(0, 0, 1), 3), math.radians(105), math.radians(151)), False)
sketch2.addGeometry(Part.ArcOfCircle(Part.Circle(V(0, 0, 0), V(0, 0, 1), 3), math.radians(29), math.radians(75)), False)
sketch2.addGeometry(Part.ArcOfCircle(Part.Circle(V(0, 0, 0), V(0, 0, 1), 2.9), math.radians(75.28), math.radians(85.14)), False)
sketch2.addGeometry(Part.LineSegment(V(0.2, 2.9, 0), V(0.2, 1.4, 0)), False)
sketch2.addGeometry(Part.LineSegment(V(0.2, 1.4, 0), V(2.6, 1.4, 0)), False)
sketch2.addConstraint(Sketcher.Constraint("Coincident", 0, 2, 1, 1))
sketch2.addConstraint(Sketcher.Constraint("Coincident", 1, 2, 2, 1))
sketch2.addConstraint(Sketcher.Constraint("Tangent", 2, 2, 3, 1))
sketch2.addConstraint(Sketcher.Constraint("Coincident", 3, 2, 0, 1))
sketch2.addConstraint(Sketcher.Constraint("Tangent", 4, 2, 5, 1))
sketch2.addConstraint(Sketcher.Constraint("Coincident", 5, 2, 6, 1))
sketch2.addConstraint(Sketcher.Constraint("Coincident", 6, 2, 7, 1))
sketch2.addConstraint(Sketcher.Constraint("Coincident", 7, 2, 4, 1))
sketch2.addConstraint(Sketcher.Constraint("Horizontal", 0))
sketch2.addConstraint(Sketcher.Constraint("Vertical", 1))
sketch2.addConstraint(Sketcher.Constraint("Vertical", 6))
sketch2.addConstraint(Sketcher.Constraint("Horizontal", 7))
sketch2.addConstraint(Sketcher.Constraint("Coincident", 2, 3, -1, 1))
sketch2.addConstraint(Sketcher.Constraint("Coincident", 4, 3, -1, 1))
sketch2.addConstraint(Sketcher.Constraint("Equal", 2, 3))
sketch2.addConstraint(Sketcher.Constraint("Equal", 3, 4))
sketch2.addConstraint(Sketcher.Constraint("Equal", 4, 5))
sketch2.addConstraint(Sketcher.Constraint("Symmetric", 0, 2, 6, 2, -2))
sketch2.addConstraint(Sketcher.Constraint("Horizontal", 2, 2, 4, 2))
sketch2.addConstraint(Sketcher.Constraint("Radius", 2, Q("2.95 mm")))
sketch2.addConstraint(Sketcher.Constraint("DistanceX", 2, 2, 1, 2, Q("0.5 mm")))
sketch2.addConstraint(Sketcher.Constraint("DistanceX", 0, 1, 0, 2, Q("2.332755 mm")))
sketch2.addConstraint(Sketcher.Constraint("DistanceY", 1, 1, 1, 2, Q("1.513573 mm")))
pad2 = body.newObject("PartDesign::Pad", "Pad001")
pad2.Profile = sketch2
pad2.Type = "TwoLengths"
pad2.Length = 2.5
pad2.Length2 = 4

doc.recompute()
